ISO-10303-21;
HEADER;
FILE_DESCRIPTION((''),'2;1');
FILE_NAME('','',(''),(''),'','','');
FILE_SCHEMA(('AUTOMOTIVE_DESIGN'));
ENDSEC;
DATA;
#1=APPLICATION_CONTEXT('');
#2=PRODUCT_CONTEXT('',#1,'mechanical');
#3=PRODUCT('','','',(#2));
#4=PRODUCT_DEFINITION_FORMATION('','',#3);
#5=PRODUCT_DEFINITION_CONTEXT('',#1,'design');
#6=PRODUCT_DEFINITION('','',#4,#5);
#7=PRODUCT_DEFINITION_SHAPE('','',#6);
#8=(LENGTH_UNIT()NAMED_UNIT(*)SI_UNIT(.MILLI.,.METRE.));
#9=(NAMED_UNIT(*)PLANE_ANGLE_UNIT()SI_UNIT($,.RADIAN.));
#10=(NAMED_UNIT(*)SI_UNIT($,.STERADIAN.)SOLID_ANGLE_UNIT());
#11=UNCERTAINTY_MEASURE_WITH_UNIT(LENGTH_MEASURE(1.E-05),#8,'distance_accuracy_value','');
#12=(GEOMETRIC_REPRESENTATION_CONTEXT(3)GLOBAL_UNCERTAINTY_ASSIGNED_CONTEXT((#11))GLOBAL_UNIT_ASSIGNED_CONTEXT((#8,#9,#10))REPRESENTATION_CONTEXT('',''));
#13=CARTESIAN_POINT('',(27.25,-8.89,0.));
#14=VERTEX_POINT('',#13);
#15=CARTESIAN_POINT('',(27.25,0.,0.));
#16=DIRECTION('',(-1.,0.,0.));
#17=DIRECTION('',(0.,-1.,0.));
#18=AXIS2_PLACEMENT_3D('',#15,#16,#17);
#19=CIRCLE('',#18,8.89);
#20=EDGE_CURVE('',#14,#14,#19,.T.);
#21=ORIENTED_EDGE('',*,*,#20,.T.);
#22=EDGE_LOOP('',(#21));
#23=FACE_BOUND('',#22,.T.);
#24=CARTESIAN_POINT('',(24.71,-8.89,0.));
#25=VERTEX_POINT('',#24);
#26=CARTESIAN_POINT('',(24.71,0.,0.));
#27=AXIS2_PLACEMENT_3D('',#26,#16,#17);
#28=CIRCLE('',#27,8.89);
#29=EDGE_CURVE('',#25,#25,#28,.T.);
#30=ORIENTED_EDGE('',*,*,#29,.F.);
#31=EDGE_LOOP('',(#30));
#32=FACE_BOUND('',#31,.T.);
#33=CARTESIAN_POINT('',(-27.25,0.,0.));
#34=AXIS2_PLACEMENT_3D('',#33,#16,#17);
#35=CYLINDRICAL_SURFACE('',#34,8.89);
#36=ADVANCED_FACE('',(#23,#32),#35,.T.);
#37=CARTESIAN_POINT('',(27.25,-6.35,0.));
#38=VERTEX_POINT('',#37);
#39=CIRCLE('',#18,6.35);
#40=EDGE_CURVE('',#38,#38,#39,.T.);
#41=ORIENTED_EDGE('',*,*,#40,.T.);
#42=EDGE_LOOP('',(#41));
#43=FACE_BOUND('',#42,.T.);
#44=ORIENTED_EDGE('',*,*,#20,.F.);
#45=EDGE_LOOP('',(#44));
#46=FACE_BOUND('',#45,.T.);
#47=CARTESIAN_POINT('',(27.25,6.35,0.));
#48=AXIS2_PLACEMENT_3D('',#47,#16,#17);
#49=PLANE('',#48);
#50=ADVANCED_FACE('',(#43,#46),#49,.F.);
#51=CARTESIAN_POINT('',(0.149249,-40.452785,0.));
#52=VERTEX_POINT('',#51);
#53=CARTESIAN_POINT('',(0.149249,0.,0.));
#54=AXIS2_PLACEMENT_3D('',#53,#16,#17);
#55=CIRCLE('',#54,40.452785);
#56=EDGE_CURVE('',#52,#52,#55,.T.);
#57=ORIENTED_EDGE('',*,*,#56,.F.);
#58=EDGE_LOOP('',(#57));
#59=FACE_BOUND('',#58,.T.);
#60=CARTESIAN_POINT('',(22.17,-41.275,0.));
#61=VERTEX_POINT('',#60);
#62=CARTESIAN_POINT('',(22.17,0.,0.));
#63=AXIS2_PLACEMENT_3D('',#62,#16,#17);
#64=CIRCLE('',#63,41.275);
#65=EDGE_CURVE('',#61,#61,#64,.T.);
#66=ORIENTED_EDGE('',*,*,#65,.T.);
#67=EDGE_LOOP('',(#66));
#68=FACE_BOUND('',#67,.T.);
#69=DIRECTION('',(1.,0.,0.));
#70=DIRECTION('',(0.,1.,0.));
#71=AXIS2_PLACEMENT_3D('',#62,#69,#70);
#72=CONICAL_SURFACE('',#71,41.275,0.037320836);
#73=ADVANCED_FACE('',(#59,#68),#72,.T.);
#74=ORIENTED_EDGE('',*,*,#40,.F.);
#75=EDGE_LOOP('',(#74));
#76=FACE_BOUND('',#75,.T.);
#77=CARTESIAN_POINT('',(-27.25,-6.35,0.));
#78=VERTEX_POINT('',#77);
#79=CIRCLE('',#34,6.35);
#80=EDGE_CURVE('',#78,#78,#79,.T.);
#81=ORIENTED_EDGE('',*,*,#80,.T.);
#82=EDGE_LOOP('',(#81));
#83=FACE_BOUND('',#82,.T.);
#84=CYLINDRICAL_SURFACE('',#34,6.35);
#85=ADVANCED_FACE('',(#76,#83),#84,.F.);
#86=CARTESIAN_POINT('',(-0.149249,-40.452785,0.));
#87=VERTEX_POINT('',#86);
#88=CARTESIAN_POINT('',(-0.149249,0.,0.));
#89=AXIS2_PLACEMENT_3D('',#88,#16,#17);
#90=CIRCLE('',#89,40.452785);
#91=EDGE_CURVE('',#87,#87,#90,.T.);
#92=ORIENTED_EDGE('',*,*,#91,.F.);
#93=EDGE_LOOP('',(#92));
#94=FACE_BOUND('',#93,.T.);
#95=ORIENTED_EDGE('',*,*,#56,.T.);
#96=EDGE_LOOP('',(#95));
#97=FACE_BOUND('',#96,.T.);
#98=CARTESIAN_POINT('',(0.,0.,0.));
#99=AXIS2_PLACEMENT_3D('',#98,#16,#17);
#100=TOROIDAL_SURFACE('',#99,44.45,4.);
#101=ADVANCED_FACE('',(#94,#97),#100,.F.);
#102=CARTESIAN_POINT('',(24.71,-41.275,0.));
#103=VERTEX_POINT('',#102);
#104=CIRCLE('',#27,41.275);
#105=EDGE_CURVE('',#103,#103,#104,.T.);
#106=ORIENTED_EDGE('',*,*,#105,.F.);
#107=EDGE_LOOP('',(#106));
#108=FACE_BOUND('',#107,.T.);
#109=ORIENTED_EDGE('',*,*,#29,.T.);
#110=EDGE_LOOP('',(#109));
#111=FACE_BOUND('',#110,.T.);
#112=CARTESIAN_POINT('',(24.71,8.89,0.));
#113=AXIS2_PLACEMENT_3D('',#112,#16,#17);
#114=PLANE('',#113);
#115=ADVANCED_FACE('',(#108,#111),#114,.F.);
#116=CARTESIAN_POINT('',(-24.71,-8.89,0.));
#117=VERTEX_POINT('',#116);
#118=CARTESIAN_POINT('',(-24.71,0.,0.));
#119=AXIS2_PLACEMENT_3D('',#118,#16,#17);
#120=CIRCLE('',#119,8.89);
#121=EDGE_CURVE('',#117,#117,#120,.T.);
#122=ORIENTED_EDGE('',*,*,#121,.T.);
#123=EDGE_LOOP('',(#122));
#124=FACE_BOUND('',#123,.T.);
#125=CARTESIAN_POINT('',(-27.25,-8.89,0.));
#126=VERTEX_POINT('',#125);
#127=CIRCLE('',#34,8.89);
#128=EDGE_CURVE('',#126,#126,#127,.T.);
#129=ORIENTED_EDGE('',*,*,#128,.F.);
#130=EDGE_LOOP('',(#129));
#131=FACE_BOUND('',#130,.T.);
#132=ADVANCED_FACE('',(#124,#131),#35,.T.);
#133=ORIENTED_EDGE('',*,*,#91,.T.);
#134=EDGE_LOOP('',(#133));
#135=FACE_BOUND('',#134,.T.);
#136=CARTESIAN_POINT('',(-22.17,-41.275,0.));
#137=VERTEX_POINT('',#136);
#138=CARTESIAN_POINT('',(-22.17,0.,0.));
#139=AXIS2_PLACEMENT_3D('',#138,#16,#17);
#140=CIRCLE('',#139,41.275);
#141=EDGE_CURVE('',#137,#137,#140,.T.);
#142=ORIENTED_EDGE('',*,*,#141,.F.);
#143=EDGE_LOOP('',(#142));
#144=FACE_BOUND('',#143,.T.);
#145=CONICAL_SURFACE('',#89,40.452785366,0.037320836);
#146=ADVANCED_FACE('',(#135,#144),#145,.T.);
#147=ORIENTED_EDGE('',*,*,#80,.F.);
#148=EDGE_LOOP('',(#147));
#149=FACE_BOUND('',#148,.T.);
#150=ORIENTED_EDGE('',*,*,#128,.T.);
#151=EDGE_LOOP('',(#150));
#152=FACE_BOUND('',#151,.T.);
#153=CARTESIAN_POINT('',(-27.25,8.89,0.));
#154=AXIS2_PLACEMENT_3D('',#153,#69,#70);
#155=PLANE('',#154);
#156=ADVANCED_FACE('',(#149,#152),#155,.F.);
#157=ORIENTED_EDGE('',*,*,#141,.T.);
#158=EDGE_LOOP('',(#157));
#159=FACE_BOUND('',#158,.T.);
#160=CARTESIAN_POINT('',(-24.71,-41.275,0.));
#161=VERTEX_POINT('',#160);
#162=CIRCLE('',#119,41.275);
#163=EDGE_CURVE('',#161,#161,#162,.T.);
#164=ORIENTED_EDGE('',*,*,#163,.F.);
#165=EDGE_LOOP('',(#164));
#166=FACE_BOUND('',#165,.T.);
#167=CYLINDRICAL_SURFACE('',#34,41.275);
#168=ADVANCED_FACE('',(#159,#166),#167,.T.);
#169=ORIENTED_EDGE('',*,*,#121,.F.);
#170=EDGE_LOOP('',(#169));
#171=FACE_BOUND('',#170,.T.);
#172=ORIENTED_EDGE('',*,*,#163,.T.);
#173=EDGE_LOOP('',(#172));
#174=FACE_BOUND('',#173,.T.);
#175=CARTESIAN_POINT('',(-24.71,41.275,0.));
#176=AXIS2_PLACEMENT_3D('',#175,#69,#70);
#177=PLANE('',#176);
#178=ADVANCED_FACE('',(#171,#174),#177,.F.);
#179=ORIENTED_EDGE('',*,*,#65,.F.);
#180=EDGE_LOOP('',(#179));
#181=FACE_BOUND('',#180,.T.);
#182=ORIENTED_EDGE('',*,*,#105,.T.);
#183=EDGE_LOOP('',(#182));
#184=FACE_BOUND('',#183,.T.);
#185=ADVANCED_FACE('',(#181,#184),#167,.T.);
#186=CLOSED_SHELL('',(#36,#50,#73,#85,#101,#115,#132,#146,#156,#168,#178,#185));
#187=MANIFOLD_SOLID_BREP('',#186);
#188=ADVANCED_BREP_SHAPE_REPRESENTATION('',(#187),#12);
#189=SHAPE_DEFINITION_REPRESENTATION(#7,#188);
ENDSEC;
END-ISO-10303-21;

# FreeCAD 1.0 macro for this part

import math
import FreeCAD as App
import Part
import Sketcher
from FreeCAD import Vector

doc = App.newDocument("Part")
params = doc.addObject("Spreadsheet::Sheet", "Params")
for row, (alias, value) in enumerate([
    ("sketch1_radius", "4.000001 mm"),
    ("sketch1_width", "54.5 mm"),
    ("sketch1_width2", "2.54 mm"),
    ("revolution_angle", "360 deg"),
], start=1):
    params.set(f"A{row}", alias)
    params.set(f"B{row}", "=" + value)
    params.setAlias(f"B{row}", alias)

body = doc.addObject("PartDesign::Body", "Body")

sketch1 = body.newObject("Sketcher::SketchObject", "Sketch")
sketch1.AttachmentSupport = (doc.getObject("XY_Plane"), [""])
sketch1.MapMode = "FlatFace"
sketch1.addGeometry(Part.LineSegment(Vector(-27.25, 6.35, 0), Vector(27.25, 6.35, 0)), False)
sketch1.addGeometry(Part.LineSegment(Vector(27.25, 6.35, 0), Vector(27.25, 8.89, 0)), False)
sketch1.addGeometry(Part.LineSegment(Vector(27.25, 8.89, 0), Vector(24.71, 8.89, 0)), False)
sketch1.addGeometry(Part.LineSegment(Vector(24.71, 8.89, 0), Vector(24.71, 41.27, 0)), False)
sketch1.addGeometry(Part.LineSegment(Vector(24.71, 41.27, 0), Vector(22.17, 41.27, 0)), False)
sketch1.addGeometry(Part.LineSegment(Vector(22.17, 41.27, 0), Vector(0.15, 40.45, 0)), False)
sketch1.addGeometry(Part.ArcOfCircle(Part.Circle(Vector(0, 44.45, 0), Vector(0, 0, 1), 4), math.radians(-92.14), math.radians(-87.86)), False)
sketch1.addGeometry(Part.LineSegment(Vector(-0.15, 40.45, 0), Vector(-22.17, 41.27, 0)), False)
sketch1.addGeometry(Part.LineSegment(Vector(-22.17, 41.27, 0), Vector(-24.71, 41.27, 0)), False)
sketch1.addGeometry(Part.LineSegment(Vector(-24.71, 41.27, 0), Vector(-24.71, 8.89, 0)), False)
sketch1.addGeometry(Part.LineSegment(Vector(-24.71, 8.89, 0), Vector(-27.25, 8.89, 0)), False)
sketch1.addGeometry(Part.LineSegment(Vector(-27.25, 8.89, 0), Vector(-27.25, 6.35, 0)), False)
sketch1.addConstraint(Sketcher.Constraint("Coincident", 0, 2, 1, 1))
sketch1.addConstraint(Sketcher.Constraint("Coincident", 1, 2, 2, 1))
sketch1.addConstraint(Sketcher.Constraint("Coincident", 2, 2, 3, 1))
sketch1.addConstraint(Sketcher.Constraint("Coincident", 3, 2, 4, 1))
sketch1.addConstraint(Sketcher.Constraint("Coincident", 4, 2, 5, 1))
sketch1.addConstraint(Sketcher.Constraint("Tangent", 5, 2, 6, 2))
sketch1.addConstraint(Sketcher.Constraint("Tangent", 6, 1, 7, 1))
sketch1.addConstraint(Sketcher.Constraint("Coincident", 7, 2, 8, 1))
sketch1.addConstraint(Sketcher.Constraint("Coincident", 8, 2, 9, 1))
sketch1.addConstraint(Sketcher.Constraint("Coincident", 9, 2, 10, 1))
sketch1.addConstraint(Sketcher.Constraint("Coincident", 10, 2, 11, 1))
sketch1.addConstraint(Sketcher.Constraint("Coincident", 11, 2, 0, 1))
sketch1.addConstraint(Sketcher.Constraint("Horizontal", 0))
sketch1.addConstraint(Sketcher.Constraint("Vertical", 1))
sketch1.addConstraint(Sketcher.Constraint("Horizontal", 2))
sketch1.addConstraint(Sketcher.Constraint("Vertical", 3))
sketch1.addConstraint(Sketcher.Constraint("Horizontal", 4))
sketch1.addConstraint(Sketcher.Constraint("Horizontal", 8))
sketch1.addConstraint(Sketcher.Constraint("Vertical", 9))
sketch1.addConstraint(Sketcher.Constraint("Horizontal", 10))
sketch1.addConstraint(Sketcher.Constraint("Vertical", 11))
sketch1.addConstraint(Sketcher.Constraint("Symmetric", 5, 2, 6, 1, -2))
sketch1.addConstraint(Sketcher.Constraint("Symmetric", 3, 2, 8, 2, -2))
sketch1.addConstraint(Sketcher.Constraint("Symmetric", 1, 2, 10, 2, -2))
sketch1.addConstraint(Sketcher.Constraint("Equal", 2, 4))
sketch1.addConstraint(Sketcher.Constraint("Equal", 10, 1))
sketch1.addConstraint(Sketcher.Constraint("Radius", 6, 4.000001))
sketch1.addConstraint(Sketcher.Constraint("DistanceX", 0, 1, 0, 2, 54.5))
sketch1.addConstraint(Sketcher.Constraint("DistanceX", 2, 2, 2, 1, 2.54))
sketch1.addConstraint(Sketcher.Constraint("DistanceY", 0, 2, 6, 3, 38.100001))
sketch1.addConstraint(Sketcher.Constraint("DistanceY", 3, 1, 3, 2, 32.385))
sketch1.addConstraint(Sketcher.Constraint("DistanceY", -1, 1, 6, 3, 44.450001))
sketch1.setExpression("Constraints[26]", "Params.sketch1_radius")
sketch1.setExpression("Constraints[27]", "Params.sketch1_width")
sketch1.setExpression("Constraints[28]", "Params.sketch1_width2")
revolution = body.newObject("PartDesign::Revolution", "Revolution")
revolution.Profile = sketch1
revolution.ReferenceAxis = (sketch1, ["H_Axis"])
revolution.setExpression("Angle", "Params.revolution_angle")

doc.recompute()
